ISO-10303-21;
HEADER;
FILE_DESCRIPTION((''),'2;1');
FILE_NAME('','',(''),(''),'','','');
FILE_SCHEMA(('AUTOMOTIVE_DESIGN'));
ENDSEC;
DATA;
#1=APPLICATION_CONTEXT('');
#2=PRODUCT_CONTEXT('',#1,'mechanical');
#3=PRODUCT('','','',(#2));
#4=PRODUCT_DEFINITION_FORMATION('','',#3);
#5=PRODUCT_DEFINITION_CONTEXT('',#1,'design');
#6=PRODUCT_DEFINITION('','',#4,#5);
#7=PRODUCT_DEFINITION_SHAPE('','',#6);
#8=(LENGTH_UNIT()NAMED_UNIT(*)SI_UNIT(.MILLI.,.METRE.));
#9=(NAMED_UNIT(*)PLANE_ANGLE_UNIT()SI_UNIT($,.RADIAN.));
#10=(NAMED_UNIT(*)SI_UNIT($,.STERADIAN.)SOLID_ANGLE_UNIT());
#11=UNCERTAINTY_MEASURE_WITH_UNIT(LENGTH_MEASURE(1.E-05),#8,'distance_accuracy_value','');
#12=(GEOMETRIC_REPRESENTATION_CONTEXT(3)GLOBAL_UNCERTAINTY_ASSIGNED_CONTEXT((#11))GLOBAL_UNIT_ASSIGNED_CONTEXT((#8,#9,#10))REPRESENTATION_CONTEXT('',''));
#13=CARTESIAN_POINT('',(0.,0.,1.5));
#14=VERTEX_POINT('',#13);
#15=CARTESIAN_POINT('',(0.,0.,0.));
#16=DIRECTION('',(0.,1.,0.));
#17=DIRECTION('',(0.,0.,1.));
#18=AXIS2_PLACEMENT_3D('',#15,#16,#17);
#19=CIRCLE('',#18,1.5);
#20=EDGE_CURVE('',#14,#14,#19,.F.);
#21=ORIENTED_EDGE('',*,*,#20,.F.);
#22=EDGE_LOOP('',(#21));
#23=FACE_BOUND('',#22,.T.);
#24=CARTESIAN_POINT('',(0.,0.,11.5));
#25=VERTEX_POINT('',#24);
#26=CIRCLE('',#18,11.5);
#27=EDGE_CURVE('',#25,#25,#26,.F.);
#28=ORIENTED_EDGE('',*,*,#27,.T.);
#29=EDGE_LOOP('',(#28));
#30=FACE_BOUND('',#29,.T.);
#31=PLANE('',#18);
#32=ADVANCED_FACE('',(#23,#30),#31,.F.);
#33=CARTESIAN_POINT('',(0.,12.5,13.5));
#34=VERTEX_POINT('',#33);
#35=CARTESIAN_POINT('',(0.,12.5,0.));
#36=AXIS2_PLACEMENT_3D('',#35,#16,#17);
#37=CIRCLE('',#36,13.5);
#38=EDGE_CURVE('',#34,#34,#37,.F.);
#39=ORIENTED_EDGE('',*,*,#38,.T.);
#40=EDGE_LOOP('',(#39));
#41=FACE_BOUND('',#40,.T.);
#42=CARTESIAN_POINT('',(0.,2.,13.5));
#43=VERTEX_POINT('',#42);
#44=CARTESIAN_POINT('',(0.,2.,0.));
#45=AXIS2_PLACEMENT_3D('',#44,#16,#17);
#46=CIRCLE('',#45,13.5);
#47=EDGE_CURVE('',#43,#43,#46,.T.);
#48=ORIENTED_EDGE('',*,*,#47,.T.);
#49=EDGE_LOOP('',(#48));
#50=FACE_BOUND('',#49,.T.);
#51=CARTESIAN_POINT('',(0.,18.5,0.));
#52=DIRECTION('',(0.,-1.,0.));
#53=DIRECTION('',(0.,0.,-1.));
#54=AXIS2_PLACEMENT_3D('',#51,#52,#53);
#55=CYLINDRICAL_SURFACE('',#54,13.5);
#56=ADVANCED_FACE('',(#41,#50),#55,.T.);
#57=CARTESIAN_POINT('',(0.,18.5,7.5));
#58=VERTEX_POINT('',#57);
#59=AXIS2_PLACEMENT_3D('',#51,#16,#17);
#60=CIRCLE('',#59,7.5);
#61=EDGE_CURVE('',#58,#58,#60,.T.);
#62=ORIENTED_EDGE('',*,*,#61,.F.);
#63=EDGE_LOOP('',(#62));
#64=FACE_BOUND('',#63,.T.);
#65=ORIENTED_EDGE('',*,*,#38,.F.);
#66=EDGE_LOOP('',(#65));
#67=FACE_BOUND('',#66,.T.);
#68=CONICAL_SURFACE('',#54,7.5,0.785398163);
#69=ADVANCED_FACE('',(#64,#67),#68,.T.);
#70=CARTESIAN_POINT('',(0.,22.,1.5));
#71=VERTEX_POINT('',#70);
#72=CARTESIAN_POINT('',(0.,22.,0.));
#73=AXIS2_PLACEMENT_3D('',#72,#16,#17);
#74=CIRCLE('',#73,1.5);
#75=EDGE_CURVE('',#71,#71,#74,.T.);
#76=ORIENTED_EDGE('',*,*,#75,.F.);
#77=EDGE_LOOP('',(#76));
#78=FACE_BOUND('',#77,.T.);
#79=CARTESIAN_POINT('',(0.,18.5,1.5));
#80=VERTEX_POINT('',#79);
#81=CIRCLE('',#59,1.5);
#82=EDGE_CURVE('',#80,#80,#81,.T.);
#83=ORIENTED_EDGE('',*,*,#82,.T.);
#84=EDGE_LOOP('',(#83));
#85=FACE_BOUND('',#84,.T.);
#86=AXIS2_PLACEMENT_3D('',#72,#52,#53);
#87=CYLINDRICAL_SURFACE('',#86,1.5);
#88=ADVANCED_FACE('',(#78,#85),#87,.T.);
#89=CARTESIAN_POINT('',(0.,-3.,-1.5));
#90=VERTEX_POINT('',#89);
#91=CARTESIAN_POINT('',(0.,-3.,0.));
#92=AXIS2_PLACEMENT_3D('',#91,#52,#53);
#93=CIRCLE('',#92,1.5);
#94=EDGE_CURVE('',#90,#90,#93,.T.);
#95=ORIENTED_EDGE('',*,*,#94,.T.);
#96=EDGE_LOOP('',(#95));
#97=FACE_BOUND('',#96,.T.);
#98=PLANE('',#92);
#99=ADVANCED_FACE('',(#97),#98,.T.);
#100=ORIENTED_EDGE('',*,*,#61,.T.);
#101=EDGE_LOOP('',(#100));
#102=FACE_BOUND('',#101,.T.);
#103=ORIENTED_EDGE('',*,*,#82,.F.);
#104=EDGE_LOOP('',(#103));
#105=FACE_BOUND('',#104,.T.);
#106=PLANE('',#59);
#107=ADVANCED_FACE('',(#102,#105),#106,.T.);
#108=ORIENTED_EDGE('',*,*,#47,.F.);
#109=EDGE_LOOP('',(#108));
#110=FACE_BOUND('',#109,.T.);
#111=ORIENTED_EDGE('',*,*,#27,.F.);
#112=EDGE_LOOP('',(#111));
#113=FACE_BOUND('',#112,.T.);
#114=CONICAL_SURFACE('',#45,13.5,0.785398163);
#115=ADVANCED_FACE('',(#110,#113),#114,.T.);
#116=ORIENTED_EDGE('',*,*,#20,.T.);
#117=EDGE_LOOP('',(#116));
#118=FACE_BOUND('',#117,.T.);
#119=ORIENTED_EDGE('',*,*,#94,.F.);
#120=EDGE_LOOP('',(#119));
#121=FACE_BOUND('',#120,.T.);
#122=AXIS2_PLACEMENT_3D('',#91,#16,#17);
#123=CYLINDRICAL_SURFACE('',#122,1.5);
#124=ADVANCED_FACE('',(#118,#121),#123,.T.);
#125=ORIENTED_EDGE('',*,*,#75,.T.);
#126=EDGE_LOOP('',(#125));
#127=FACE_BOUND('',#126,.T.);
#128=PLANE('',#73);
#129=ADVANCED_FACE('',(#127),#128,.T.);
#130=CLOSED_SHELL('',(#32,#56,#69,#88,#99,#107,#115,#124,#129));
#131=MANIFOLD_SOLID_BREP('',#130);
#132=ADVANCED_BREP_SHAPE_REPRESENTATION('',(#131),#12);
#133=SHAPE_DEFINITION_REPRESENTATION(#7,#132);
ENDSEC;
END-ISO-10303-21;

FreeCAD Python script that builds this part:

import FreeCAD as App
import Part
import Sketcher


def edges_at(feature, points):
    """Names of the edges that pass closest to the given points."""
    edges = feature.Shape.Edges
    near = lambda p: min(range(len(edges)), key=lambda i: edges[i].distToShape(Part.Vertex(*p))[0])
    return sorted({f"Edge{near(p) + 1}" for p in points})

doc = App.newDocument("Part")
body = doc.addObject("PartDesign::Body", "Body")

sketch1 = doc.addObject("Sketcher::SketchObject", "Sketch")
body.addObject(sketch1)
sketch1.AttachmentSupport = (doc.XZ_Plane, [""])
sketch1.MapMode = "FlatFace"
sketch1.addGeometry(Part.Circle(App.Vector(0, 0, 0), App.Vector(0, 0, 1), 14), False)
sketch1.addConstraint([
    Sketcher.Constraint("Coincident", 0, 3, -1, 1),
    Sketcher.Constraint("Diameter", 0, 27.0),
])
pad1 = doc.addObject("PartDesign::Pad", "Pad")
body.addObject(pad1)
pad1.Profile = sketch1
pad1.Length = 18.5
pad1.Reversed = True

sketch2 = doc.addObject("Sketcher::SketchObject", "Sketch001")
body.addObject(sketch2)
sketch2.AttachmentSupport = (doc.XZ_Plane, [""])
sketch2.MapMode = "FlatFace"
sketch2.AttachmentOffset = App.Placement(App.Vector(0, 0, -18.5), App.Rotation())
sketch2.addGeometry(Part.Circle(App.Vector(0, 0, 0), App.Vector(0, 0, 1), 1.5), False)
sketch2.addConstraint([
    Sketcher.Constraint("Coincident", 0, 3, -1, 1),
    Sketcher.Constraint("Diameter", 0, 3.0),
])
pad2 = doc.addObject("PartDesign::Pad", "Pad001")
body.addObject(pad2)
pad2.Profile = sketch2
pad2.Length = 3.5
pad2.Reversed = True

sketch3 = doc.addObject("Sketcher::SketchObject", "Sketch002")
body.addObject(sketch3)
sketch3.AttachmentSupport = (doc.XZ_Plane, [""])
sketch3.MapMode = "FlatFace"
sketch3.AttachmentOffset = App.Placement(App.Vector(0, 0, 3), App.Rotation())
sketch3.addGeometry(Part.Circle(App.Vector(0, 0, 0), App.Vector(0, 0, 1), 1.5), False)
sketch3.addConstraint([
    Sketcher.Constraint("Coincident", 0, 3, -1, 1),
    Sketcher.Constraint("Diameter", 0, 3.0),
])
pad3 = doc.addObject("PartDesign::Pad", "Pad002")
body.addObject(pad3)
pad3.Profile = sketch3
pad3.Length = 3
pad3.Reversed = True
doc.recompute()

chamfer = doc.addObject("PartDesign::Chamfer", "Chamfer")
body.addObject(chamfer)
chamfer.Base = (pad3, edges_at(pad3, [(0, 18.5, -13.5)]))
chamfer.Size = 6
doc.recompute()

chamfer2 = doc.addObject("PartDesign::Chamfer", "Chamfer001")
body.addObject(chamfer2)
chamfer2.Base = (chamfer, edges_at(chamfer, [(0, 0, -13.5)]))
chamfer2.Size = 2

doc.recompute()
